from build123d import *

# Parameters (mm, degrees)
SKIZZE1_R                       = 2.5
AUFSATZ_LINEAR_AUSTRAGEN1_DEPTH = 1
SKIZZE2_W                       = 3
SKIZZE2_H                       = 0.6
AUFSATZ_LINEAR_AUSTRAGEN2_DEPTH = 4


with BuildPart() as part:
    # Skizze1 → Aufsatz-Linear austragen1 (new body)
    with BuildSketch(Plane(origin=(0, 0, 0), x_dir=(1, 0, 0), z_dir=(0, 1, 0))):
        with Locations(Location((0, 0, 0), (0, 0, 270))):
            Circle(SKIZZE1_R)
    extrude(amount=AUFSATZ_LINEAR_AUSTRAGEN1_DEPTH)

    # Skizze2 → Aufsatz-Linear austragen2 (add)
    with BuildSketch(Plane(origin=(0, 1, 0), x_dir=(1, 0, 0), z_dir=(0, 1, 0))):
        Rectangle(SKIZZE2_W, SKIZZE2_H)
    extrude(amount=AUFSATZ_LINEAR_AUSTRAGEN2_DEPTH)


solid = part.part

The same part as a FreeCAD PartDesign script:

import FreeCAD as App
import Part
import Sketcher
from FreeCAD import Vector
Q = App.Units.Quantity

doc = App.newDocument("Part")
body = doc.addObject("PartDesign::Body", "Body")

sketch1 = body.newObject("Sketcher::SketchObject", "Sketch")
sketch1.AttachmentSupport = (doc.getObject("XZ_Plane"), [""])
sketch1.MapMode = "FlatFace"
sketch1.addGeometry(Part.Circle(Vector(0, 0, 0), Vector(0, 0, 1), 2.5), False)
sketch1.addConstraint([
    Sketcher.Constraint("Coincident", 0, 3, -1, 1),
    Sketcher.Constraint("Diameter", 0, Q("5 mm")),
])
pad1 = body.newObject("PartDesign::Pad", "Pad")
pad1.Profile = sketch1
pad1.Length = 1
pad1.Reversed = True

sketch2 = body.newObject("Sketcher::SketchObject", "Sketch001")
sketch2.AttachmentSupport = (doc.getObject("XZ_Plane"), [""])
sketch2.MapMode = "FlatFace"
sketch2.AttachmentOffset = App.Placement(Vector(0, 0, -1), App.Rotation())
sketch2.addGeometry([
    Part.LineSegment(Vector(-1.5, -0.3, 0), Vector(-1.5, 0.3, 0)),
    Part.LineSegment(Vector(-1.5, 0.3, 0), Vector(1.5, 0.3, 0)),
    Part.LineSegment(Vector(1.5, 0.3, 0), Vector(1.5, -0.3, 0)),
    Part.LineSegment(Vector(1.5, -0.3, 0), Vector(-1.5, -0.3, 0)),
], False)
sketch2.addConstraint([
    Sketcher.Constraint("Coincident", 0, 2, 1, 1),
    Sketcher.Constraint("Coincident", 1, 2, 2, 1),
    Sketcher.Constraint("Coincident", 2, 2, 3, 1),
    Sketcher.Constraint("Coincident", 3, 2, 0, 1),
    Sketcher.Constraint("Vertical", 0),
    Sketcher.Constraint("Horizontal", 1),
    Sketcher.Constraint("Vertical", 2),
    Sketcher.Constraint("Horizontal", 3),
    Sketcher.Constraint("Symmetric", 0, 2, 2, 2, -1, 1),
    Sketcher.Constraint("DistanceX", 1, 1, 1, 2, Q("3 mm")),
    Sketcher.Constraint("DistanceY", 0, 1, 0, 2, Q("0.6 mm")),
])
pad2 = body.newObject("PartDesign::Pad", "Pad001")
pad2.Profile = sketch2
pad2.Length = 4
pad2.Reversed = True

doc.recompute()
